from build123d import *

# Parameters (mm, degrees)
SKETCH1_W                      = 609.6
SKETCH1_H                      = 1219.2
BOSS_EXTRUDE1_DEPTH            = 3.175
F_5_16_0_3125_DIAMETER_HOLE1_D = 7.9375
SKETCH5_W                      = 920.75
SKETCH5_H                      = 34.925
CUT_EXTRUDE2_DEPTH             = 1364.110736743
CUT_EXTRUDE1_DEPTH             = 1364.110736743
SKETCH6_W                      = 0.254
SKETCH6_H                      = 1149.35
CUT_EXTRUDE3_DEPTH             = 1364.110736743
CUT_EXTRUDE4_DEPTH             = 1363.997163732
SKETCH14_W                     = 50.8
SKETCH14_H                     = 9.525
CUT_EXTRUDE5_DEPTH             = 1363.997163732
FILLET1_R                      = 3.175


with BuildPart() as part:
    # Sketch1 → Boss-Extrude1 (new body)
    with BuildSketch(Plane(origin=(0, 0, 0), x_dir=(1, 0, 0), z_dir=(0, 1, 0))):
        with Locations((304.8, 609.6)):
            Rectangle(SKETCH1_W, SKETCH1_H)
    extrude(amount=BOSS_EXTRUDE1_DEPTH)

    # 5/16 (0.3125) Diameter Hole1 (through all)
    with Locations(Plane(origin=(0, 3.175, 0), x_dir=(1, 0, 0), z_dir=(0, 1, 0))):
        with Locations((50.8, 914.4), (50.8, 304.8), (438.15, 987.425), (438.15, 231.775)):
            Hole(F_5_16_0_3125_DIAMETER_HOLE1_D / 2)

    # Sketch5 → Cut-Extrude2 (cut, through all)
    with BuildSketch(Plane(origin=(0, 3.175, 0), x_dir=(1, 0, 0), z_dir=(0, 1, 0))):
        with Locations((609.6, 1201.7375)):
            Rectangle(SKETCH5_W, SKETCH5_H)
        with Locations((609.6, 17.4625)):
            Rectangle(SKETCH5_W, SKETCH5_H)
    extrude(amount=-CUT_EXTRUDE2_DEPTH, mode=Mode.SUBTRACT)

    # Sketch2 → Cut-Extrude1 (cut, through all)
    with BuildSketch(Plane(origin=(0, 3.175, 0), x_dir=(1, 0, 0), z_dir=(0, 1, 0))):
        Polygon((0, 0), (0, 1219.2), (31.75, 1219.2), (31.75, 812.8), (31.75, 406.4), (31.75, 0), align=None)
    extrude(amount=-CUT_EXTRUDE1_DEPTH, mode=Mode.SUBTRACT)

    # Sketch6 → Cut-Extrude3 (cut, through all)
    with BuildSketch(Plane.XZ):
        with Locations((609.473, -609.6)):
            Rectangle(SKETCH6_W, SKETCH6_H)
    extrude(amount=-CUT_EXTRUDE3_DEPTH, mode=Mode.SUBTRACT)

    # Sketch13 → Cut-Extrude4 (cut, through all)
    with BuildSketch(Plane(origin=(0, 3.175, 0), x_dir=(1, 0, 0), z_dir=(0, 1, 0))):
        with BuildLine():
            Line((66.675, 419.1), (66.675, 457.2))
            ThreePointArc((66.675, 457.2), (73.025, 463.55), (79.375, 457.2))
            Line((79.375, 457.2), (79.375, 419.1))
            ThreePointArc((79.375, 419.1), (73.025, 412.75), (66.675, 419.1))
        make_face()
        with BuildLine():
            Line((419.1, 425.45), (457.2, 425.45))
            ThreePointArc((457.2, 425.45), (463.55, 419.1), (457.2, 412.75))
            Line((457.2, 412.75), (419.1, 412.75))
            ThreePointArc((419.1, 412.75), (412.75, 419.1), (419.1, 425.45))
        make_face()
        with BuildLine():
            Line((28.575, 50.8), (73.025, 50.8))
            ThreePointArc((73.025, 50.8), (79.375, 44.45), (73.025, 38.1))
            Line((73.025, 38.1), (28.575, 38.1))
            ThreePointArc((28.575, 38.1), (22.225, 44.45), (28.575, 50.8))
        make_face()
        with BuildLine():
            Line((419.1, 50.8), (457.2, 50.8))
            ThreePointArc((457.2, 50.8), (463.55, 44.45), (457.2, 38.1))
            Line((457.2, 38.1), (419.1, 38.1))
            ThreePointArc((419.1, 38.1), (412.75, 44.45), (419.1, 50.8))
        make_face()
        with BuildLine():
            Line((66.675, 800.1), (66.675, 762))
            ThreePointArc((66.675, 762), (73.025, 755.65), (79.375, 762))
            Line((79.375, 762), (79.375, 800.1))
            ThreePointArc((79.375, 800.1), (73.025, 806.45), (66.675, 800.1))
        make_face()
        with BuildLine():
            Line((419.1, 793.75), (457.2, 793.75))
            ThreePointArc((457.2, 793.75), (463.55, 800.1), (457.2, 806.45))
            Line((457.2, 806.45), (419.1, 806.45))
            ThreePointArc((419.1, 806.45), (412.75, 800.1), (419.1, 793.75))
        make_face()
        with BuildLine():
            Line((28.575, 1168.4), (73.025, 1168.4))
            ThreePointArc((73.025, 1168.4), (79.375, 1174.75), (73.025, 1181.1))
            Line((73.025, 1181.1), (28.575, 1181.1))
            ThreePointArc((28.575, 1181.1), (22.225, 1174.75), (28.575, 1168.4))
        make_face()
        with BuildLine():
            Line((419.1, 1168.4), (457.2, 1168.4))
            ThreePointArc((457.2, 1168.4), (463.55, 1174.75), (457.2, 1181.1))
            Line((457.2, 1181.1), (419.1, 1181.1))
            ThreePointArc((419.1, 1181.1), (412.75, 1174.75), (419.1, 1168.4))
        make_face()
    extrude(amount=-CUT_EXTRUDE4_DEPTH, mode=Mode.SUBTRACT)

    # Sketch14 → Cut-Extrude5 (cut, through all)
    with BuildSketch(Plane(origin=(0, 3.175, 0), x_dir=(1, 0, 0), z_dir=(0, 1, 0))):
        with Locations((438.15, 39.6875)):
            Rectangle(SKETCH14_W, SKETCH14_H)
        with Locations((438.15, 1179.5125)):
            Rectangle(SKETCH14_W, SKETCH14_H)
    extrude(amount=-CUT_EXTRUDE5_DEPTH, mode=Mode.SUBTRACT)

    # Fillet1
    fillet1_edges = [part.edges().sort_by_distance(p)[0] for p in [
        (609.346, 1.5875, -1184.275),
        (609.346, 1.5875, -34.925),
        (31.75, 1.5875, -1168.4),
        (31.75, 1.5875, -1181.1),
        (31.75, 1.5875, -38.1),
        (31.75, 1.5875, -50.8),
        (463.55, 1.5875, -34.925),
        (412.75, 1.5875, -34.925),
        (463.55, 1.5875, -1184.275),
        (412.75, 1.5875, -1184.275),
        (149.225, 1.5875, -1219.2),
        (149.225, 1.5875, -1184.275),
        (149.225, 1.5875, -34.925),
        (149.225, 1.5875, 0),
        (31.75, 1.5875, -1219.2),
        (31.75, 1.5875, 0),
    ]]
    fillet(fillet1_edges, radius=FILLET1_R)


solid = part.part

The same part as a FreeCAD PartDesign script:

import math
import FreeCAD as App
import Part
import Sketcher
from FreeCAD import Vector
Q = App.Units.Quantity


def edges_at(feature, points):
    """Names of the edges that pass closest to the given points."""
    edges = feature.Shape.Edges
    near = lambda p: min(range(len(edges)), key=lambda i: edges[i].distToShape(Part.Vertex(*p))[0])
    return sorted({f"Edge{near(p) + 1}" for p in points})


def add_polygon(sketch, points):
    """Adds a closed chain of lines whose ends are joined by coincident constraints."""
    first, n = sketch.GeometryCount, len(points)
    for a, b in zip(points, points[1:] + points[:1]):
        sketch.addGeometry(Part.LineSegment(App.Vector(*a, 0), App.Vector(*b, 0)), False)
    for i in range(n):
        sketch.addConstraint(Sketcher.Constraint("Coincident", first + i, 2, first + (i + 1) % n, 1))

doc = App.newDocument("Part")
body = doc.addObject("PartDesign::Body", "Body")

# Sketch on XZ plane
sketch1 = body.newObject("Sketcher::SketchObject", "Sketch")
sketch1.AttachmentSupport = (doc.getObject("XZ_Plane"), [""])
sketch1.MapMode = "FlatFace"
add_polygon(sketch1, [(0, -1219.2), (0, 0), (609.6, 0), (609.6, -1219.2)])  # lines 0-3
sketch1.addConstraint(Sketcher.Constraint("Vertical", 0))
sketch1.addConstraint(Sketcher.Constraint("Horizontal", 1))
sketch1.addConstraint(Sketcher.Constraint("Vertical", 2))
sketch1.addConstraint(Sketcher.Constraint("Horizontal", 3))
sketch1.addConstraint(Sketcher.Constraint("Coincident", 0, 2, -1, 1))
sketch1.addConstraint(Sketcher.Constraint("DistanceX", 1, 1, 1, 2, Q("24 in")))
sketch1.addConstraint(Sketcher.Constraint("DistanceY", 0, 1, 0, 2, Q("48 in")))
pad1 = body.newObject("PartDesign::Pad", "Pad")
pad1.Profile = sketch1
pad1.Length = Q("0.125 in")
pad1.Reversed = True

# Sketch on XZ plane
sketch2 = body.newObject("Sketcher::SketchObject", "Sketch001")
sketch2.AttachmentSupport = (doc.getObject("XZ_Plane"), [""])
sketch2.MapMode = "FlatFace"
sketch2.AttachmentOffset = App.Placement(Vector(0, 0, -0.125 * 25.4), App.Rotation())
sketch2.addGeometry(Part.Circle(Vector(50.8, -914.4, 0), Vector(0, 0, 1), 3.96875), False)
sketch2.addGeometry(Part.Circle(Vector(50.8, -304.8, 0), Vector(0, 0, 1), 3.96875), False)
sketch2.addGeometry(Part.Circle(Vector(438.15, -987.425, 0), Vector(0, 0, 1), 3.96875), False)
sketch2.addGeometry(Part.Circle(Vector(438.15, -231.775, 0), Vector(0, 0, 1), 3.96875), False)
sketch2.addConstraint(Sketcher.Constraint("Equal", 0, 1))
sketch2.addConstraint(Sketcher.Constraint("Equal", 1, 2))
sketch2.addConstraint(Sketcher.Constraint("Equal", 2, 3))
sketch2.addConstraint(Sketcher.Constraint("Vertical", 0, 3, 1, 3))
sketch2.addConstraint(Sketcher.Constraint("Vertical", 2, 3, 3, 3))
sketch2.addConstraint(Sketcher.Constraint("Diameter", 0, Q("0.3125 in")))
sketch2.addConstraint(Sketcher.Constraint("DistanceX", -1, 1, 0, 3, Q("2 in")))
sketch2.addConstraint(Sketcher.Constraint("DistanceY", 0, 3, -1, 1, Q("36 in")))
sketch2.addConstraint(Sketcher.Constraint("DistanceY", 1, 3, -1, 1, Q("12 in")))
sketch2.addConstraint(Sketcher.Constraint("DistanceX", -1, 1, 2, 3, Q("17.25 in")))
sketch2.addConstraint(Sketcher.Constraint("DistanceY", 2, 3, 3, 3, Q("29.75 in")))
sketch2.addConstraint(Sketcher.Constraint("DistanceY", 2, 3, -1, 1, Q("38.875 in")))
doc.recompute()
hole = body.newObject("PartDesign::Hole", "Hole")
hole.Profile = sketch2
hole.ThreadType = "None"
hole.Diameter = Q("0.3125 in")
hole.DepthType = "ThroughAll"
hole.Reversed = True

# Sketch on XZ plane
sketch3 = body.newObject("Sketcher::SketchObject", "Sketch002")
sketch3.AttachmentSupport = (doc.getObject("XZ_Plane"), [""])
sketch3.MapMode = "FlatFace"
sketch3.AttachmentOffset = App.Placement(Vector(0, 0, -0.125 * 25.4), App.Rotation())
add_polygon(sketch3, [(149.225, -1219.2), (149.225, -1184.275), (1069.975, -1184.275), (1069.975, -1219.2)])  # lines 0-3
add_polygon(sketch3, [(149.225, -34.925), (149.225, 0), (1069.975, 0), (1069.975, -34.925)])  # lines 4-7
sketch3.addConstraint(Sketcher.Constraint("Vertical", 0))
sketch3.addConstraint(Sketcher.Constraint("Horizontal", 1))
sketch3.addConstraint(Sketcher.Constraint("Vertical", 2))
sketch3.addConstraint(Sketcher.Constraint("Horizontal", 3))
sketch3.addConstraint(Sketcher.Constraint("Vertical", 4))
sketch3.addConstraint(Sketcher.Constraint("Horizontal", 5))
sketch3.addConstraint(Sketcher.Constraint("Vertical", 6))
sketch3.addConstraint(Sketcher.Constraint("Horizontal", 7))
sketch3.addConstraint(Sketcher.Constraint("PointOnObject", 4, 2, -1))
sketch3.addConstraint(Sketcher.Constraint("Vertical", 3, 2, 4, 2))
sketch3.addConstraint(Sketcher.Constraint("Vertical", 2, 2, 5, 2))
sketch3.addConstraint(Sketcher.Constraint("Equal", 2, 4))
sketch3.addConstraint(Sketcher.Constraint("DistanceY", 2, 2, -1, 1, Q("48 in")))
sketch3.addConstraint(Sketcher.Constraint("DistanceX", 1, 1, 1, 2, Q("36.25 in")))
sketch3.addConstraint(Sketcher.Constraint("DistanceY", 0, 1, 0, 2, Q("1.375 in")))
sketch3.addConstraint(Sketcher.Constraint("DistanceX", -1, 1, 0, 2, Q("5.875 in")))
pocket1 = body.newObject("PartDesign::Pocket", "Pocket")
pocket1.Profile = sketch3
pocket1.Type = "ThroughAll"
pocket1.Reversed = True

# Sketch on XZ plane
sketch4 = body.newObject("Sketcher::SketchObject", "Sketch003")
sketch4.AttachmentSupport = (doc.getObject("XZ_Plane"), [""])
sketch4.MapMode = "FlatFace"
sketch4.AttachmentOffset = App.Placement(Vector(0, 0, -0.125 * 25.4), App.Rotation())
add_polygon(sketch4, [(0, -1219.2), (0, 0), (31.75, 0), (31.75, -1219.2)])  # lines 0-3
sketch4.addConstraint(Sketcher.Constraint("Vertical", 0))
sketch4.addConstraint(Sketcher.Constraint("Horizontal", 1))
sketch4.addConstraint(Sketcher.Constraint("Vertical", 2))
sketch4.addConstraint(Sketcher.Constraint("Horizontal", 3))
sketch4.addConstraint(Sketcher.Constraint("Coincident", 0, 2, -1, 1))
sketch4.addConstraint(Sketcher.Constraint("DistanceY", 0, 1, 0, 2, Q("48 in")))
sketch4.addConstraint(Sketcher.Constraint("DistanceX", 1, 1, 1, 2, Q("1.25 in")))
pocket2 = body.newObject("PartDesign::Pocket", "Pocket001")
pocket2.Profile = sketch4
pocket2.Type = "ThroughAll"
pocket2.Reversed = True

# Sketch on XZ plane
sketch5 = body.newObject("Sketcher::SketchObject", "Sketch004")
sketch5.AttachmentSupport = (doc.getObject("XZ_Plane"), [""])
sketch5.MapMode = "FlatFace"
add_polygon(sketch5, [(609.346, -34.925), (609.346, -1184.275), (609.6, -1184.275), (609.6, -34.925)])  # lines 0-3
sketch5.addConstraint(Sketcher.Constraint("Vertical", 0))
sketch5.addConstraint(Sketcher.Constraint("Horizontal", 1))
sketch5.addConstraint(Sketcher.Constraint("Vertical", 2))
sketch5.addConstraint(Sketcher.Constraint("Horizontal", 3))
sketch5.addConstraint(Sketcher.Constraint("DistanceX", -1, 1, 1, 2, Q("24 in")))
sketch5.addConstraint(Sketcher.Constraint("DistanceX", 1, 1, 1, 2, Q("0.01 in")))
sketch5.addConstraint(Sketcher.Constraint("DistanceY", 0, 2, 0, 1, Q("45.25 in")))
sketch5.addConstraint(Sketcher.Constraint("DistanceY", 0, 2, -1, 1, Q("46.625 in")))
pocket3 = body.newObject("PartDesign::Pocket", "Pocket002")
pocket3.Profile = sketch5
pocket3.Type = "ThroughAll"

# Sketch on XZ plane
sketch6 = body.newObject("Sketcher::SketchObject", "Sketch005")
sketch6.AttachmentSupport = (doc.getObject("XZ_Plane"), [""])
sketch6.MapMode = "FlatFace"
sketch6.AttachmentOffset = App.Placement(Vector(0, 0, -0.125 * 25.4), App.Rotation())
sketch6.addGeometry(Part.LineSegment(Vector(66.675, -457.2, 0), Vector(66.675, -419.1, 0)), False)
sketch6.addGeometry(Part.ArcOfCircle(Part.Circle(Vector(73.025, -419.1, 0), Vector(0, 0, 1), 6.35), math.radians(0), math.radians(180)), False)
sketch6.addGeometry(Part.LineSegment(Vector(79.375, -419.1, 0), Vector(79.375, -457.2, 0)), False)
sketch6.addGeometry(Part.ArcOfCircle(Part.Circle(Vector(73.025, -457.2, 0), Vector(0, 0, 1), 6.35), math.radians(180), math.radians(360)), False)
sketch6.addGeometry(Part.LineSegment(Vector(457.2, -425.45, 0), Vector(419.1, -425.45, 0)), False)
sketch6.addGeometry(Part.ArcOfCircle(Part.Circle(Vector(419.1, -419.1, 0), Vector(0, 0, 1), 6.35), math.radians(90), math.radians(270)), False)
sketch6.addGeometry(Part.LineSegment(Vector(419.1, -412.75, 0), Vector(457.2, -412.75, 0)), False)
sketch6.addGeometry(Part.ArcOfCircle(Part.Circle(Vector(457.2, -419.1, 0), Vector(0, 0, 1), 6.35), math.radians(-90), math.radians(90)), False)
sketch6.addGeometry(Part.LineSegment(Vector(73.025, -50.8, 0), Vector(28.575, -50.8, 0)), False)
sketch6.addGeometry(Part.ArcOfCircle(Part.Circle(Vector(28.575, -44.45, 0), Vector(0, 0, 1), 6.35), math.radians(90), math.radians(270)), False)
sketch6.addGeometry(Part.LineSegment(Vector(28.575, -38.1, 0), Vector(73.025, -38.1, 0)), False)
sketch6.addGeometry(Part.ArcOfCircle(Part.Circle(Vector(73.025, -44.45, 0), Vector(0, 0, 1), 6.35), math.radians(-90), math.radians(90)), False)
sketch6.addGeometry(Part.LineSegment(Vector(457.2, -50.8, 0), Vector(419.1, -50.8, 0)), False)
sketch6.addGeometry(Part.ArcOfCircle(Part.Circle(Vector(419.1, -44.45, 0), Vector(0, 0, 1), 6.35), math.radians(90), math.radians(270)), False)
sketch6.addGeometry(Part.LineSegment(Vector(419.1, -38.1, 0), Vector(457.2, -38.1, 0)), False)
sketch6.addGeometry(Part.ArcOfCircle(Part.Circle(Vector(457.2, -44.45, 0), Vector(0, 0, 1), 6.35), math.radians(-90), math.radians(90)), False)
sketch6.addGeometry(Part.LineSegment(Vector(66.675, -800.1, 0), Vector(66.675, -762, 0)), False)
sketch6.addGeometry(Part.ArcOfCircle(Part.Circle(Vector(73.025, -762, 0), Vector(0, 0, 1), 6.35), math.radians(0), math.radians(180)), False)
sketch6.addGeometry(Part.LineSegment(Vector(79.375, -762, 0), Vector(79.375, -800.1, 0)), False)
sketch6.addGeometry(Part.ArcOfCircle(Part.Circle(Vector(73.025, -800.1, 0), Vector(0, 0, 1), 6.35), math.radians(180), math.radians(360)), False)
sketch6.addGeometry(Part.LineSegment(Vector(419.1, -793.75, 0), Vector(457.2, -793.75, 0)), False)
sketch6.addGeometry(Part.ArcOfCircle(Part.Circle(Vector(457.2, -800.1, 0), Vector(0, 0, 1), 6.35), math.radians(-90), math.radians(90)), False)
sketch6.addGeometry(Part.LineSegment(Vector(457.2, -806.45, 0), Vector(419.1, -806.45, 0)), False)
sketch6.addGeometry(Part.ArcOfCircle(Part.Circle(Vector(419.1, -800.1, 0), Vector(0, 0, 1), 6.35), math.radians(90), math.radians(270)), False)
sketch6.addGeometry(Part.LineSegment(Vector(28.575, -1168.4, 0), Vector(73.025, -1168.4, 0)), False)
sketch6.addGeometry(Part.ArcOfCircle(Part.Circle(Vector(73.025, -1174.75, 0), Vector(0, 0, 1), 6.35), math.radians(-90), math.radians(90)), False)
sketch6.addGeometry(Part.LineSegment(Vector(73.025, -1181.1, 0), Vector(28.575, -1181.1, 0)), False)
sketch6.addGeometry(Part.ArcOfCircle(Part.Circle(Vector(28.575, -1174.75, 0), Vector(0, 0, 1), 6.35), math.radians(90), math.radians(270)), False)
sketch6.addGeometry(Part.LineSegment(Vector(419.1, -1168.4, 0), Vector(457.2, -1168.4, 0)), False)
sketch6.addGeometry(Part.ArcOfCircle(Part.Circle(Vector(457.2, -1174.75, 0), Vector(0, 0, 1), 6.35), math.radians(-90), math.radians(90)), False)
sketch6.addGeometry(Part.LineSegment(Vector(457.2, -1181.1, 0), Vector(419.1, -1181.1, 0)), False)
sketch6.addGeometry(Part.ArcOfCircle(Part.Circle(Vector(419.1, -1174.75, 0), Vector(0, 0, 1), 6.35), math.radians(90), math.radians(270)), False)
sketch6.addConstraint(Sketcher.Constraint("Tangent", 0, 2, 1, 2))
sketch6.addConstraint(Sketcher.Constraint("Tangent", 1, 1, 2, 1))
sketch6.addConstraint(Sketcher.Constraint("Tangent", 2, 2, 3, 2))
sketch6.addConstraint(Sketcher.Constraint("Tangent", 3, 1, 0, 1))
sketch6.addConstraint(Sketcher.Constraint("Tangent", 4, 2, 5, 2))
sketch6.addConstraint(Sketcher.Constraint("Tangent", 5, 1, 6, 1))
sketch6.addConstraint(Sketcher.Constraint("Tangent", 6, 2, 7, 2))
sketch6.addConstraint(Sketcher.Constraint("Tangent", 7, 1, 4, 1))
sketch6.addConstraint(Sketcher.Constraint("Tangent", 8, 2, 9, 2))
sketch6.addConstraint(Sketcher.Constraint("Tangent", 9, 1, 10, 1))
sketch6.addConstraint(Sketcher.Constraint("Tangent", 10, 2, 11, 2))
sketch6.addConstraint(Sketcher.Constraint("Tangent", 11, 1, 8, 1))
sketch6.addConstraint(Sketcher.Constraint("Tangent", 12, 2, 13, 2))
sketch6.addConstraint(Sketcher.Constraint("Tangent", 13, 1, 14, 1))
sketch6.addConstraint(Sketcher.Constraint("Tangent", 14, 2, 15, 2))
sketch6.addConstraint(Sketcher.Constraint("Tangent", 15, 1, 12, 1))
sketch6.addConstraint(Sketcher.Constraint("Tangent", 16, 2, 17, 2))
sketch6.addConstraint(Sketcher.Constraint("Tangent", 17, 1, 18, 1))
sketch6.addConstraint(Sketcher.Constraint("Tangent", 18, 2, 19, 2))
sketch6.addConstraint(Sketcher.Constraint("Tangent", 19, 1, 16, 1))
sketch6.addConstraint(Sketcher.Constraint("Tangent", 20, 2, 21, 2))
sketch6.addConstraint(Sketcher.Constraint("Tangent", 21, 1, 22, 1))
sketch6.addConstraint(Sketcher.Constraint("Tangent", 22, 2, 23, 2))
sketch6.addConstraint(Sketcher.Constraint("Tangent", 23, 1, 20, 1))
sketch6.addConstraint(Sketcher.Constraint("Tangent", 24, 2, 25, 2))
sketch6.addConstraint(Sketcher.Constraint("Tangent", 25, 1, 26, 1))
sketch6.addConstraint(Sketcher.Constraint("Tangent", 26, 2, 27, 2))
sketch6.addConstraint(Sketcher.Constraint("Tangent", 27, 1, 24, 1))
sketch6.addConstraint(Sketcher.Constraint("Tangent", 28, 2, 29, 2))
sketch6.addConstraint(Sketcher.Constraint("Tangent", 29, 1, 30, 1))
sketch6.addConstraint(Sketcher.Constraint("Tangent", 30, 2, 31, 2))
sketch6.addConstraint(Sketcher.Constraint("Tangent", 31, 1, 28, 1))
sketch6.addConstraint(Sketcher.Constraint("Vertical", 0))
sketch6.addConstraint(Sketcher.Constraint("Vertical", 2))
sketch6.addConstraint(Sketcher.Constraint("Horizontal", 4))
sketch6.addConstraint(Sketcher.Constraint("Horizontal", 6))
sketch6.addConstraint(Sketcher.Constraint("Horizontal", 8))
sketch6.addConstraint(Sketcher.Constraint("Horizontal", 10))
sketch6.addConstraint(Sketcher.Constraint("Horizontal", 12))
sketch6.addConstraint(Sketcher.Constraint("Horizontal", 14))
sketch6.addConstraint(Sketcher.Constraint("Vertical", 16))
sketch6.addConstraint(Sketcher.Constraint("Vertical", 18))
sketch6.addConstraint(Sketcher.Constraint("Horizontal", 20))
sketch6.addConstraint(Sketcher.Constraint("Horizontal", 22))
sketch6.addConstraint(Sketcher.Constraint("Horizontal", 24))
sketch6.addConstraint(Sketcher.Constraint("Horizontal", 26))
sketch6.addConstraint(Sketcher.Constraint("Horizontal", 28))
sketch6.addConstraint(Sketcher.Constraint("Horizontal", 30))
sketch6.addConstraint(Sketcher.Constraint("Equal", 3, 5))
sketch6.addConstraint(Sketcher.Constraint("Equal", 7, 9))
sketch6.addConstraint(Sketcher.Constraint("Equal", 11, 13))
sketch6.addConstraint(Sketcher.Constraint("Equal", 15, 17))
sketch6.addConstraint(Sketcher.Constraint("Equal", 19, 21))
sketch6.addConstraint(Sketcher.Constraint("Equal", 23, 25))
sketch6.addConstraint(Sketcher.Constraint("Equal", 27, 29))
sketch6.addConstraint(Sketcher.Constraint("Horizontal", 1, 3, 5, 3))
sketch6.addConstraint(Sketcher.Constraint("Horizontal", 11, 3, 13, 3))
sketch6.addConstraint(Sketcher.Constraint("Horizontal", 19, 3, 21, 3))
sketch6.addConstraint(Sketcher.Constraint("Horizontal", 27, 3, 29, 3))
sketch6.addConstraint(Sketcher.Constraint("Vertical", 3, 3, 11, 3))
sketch6.addConstraint(Sketcher.Constraint("Vertical", 5, 3, 13, 3))
sketch6.addConstraint(Sketcher.Constraint("Vertical", 7, 3, 15, 3))
sketch6.addConstraint(Sketcher.Constraint("Vertical", 11, 3, 17, 3))
sketch6.addConstraint(Sketcher.Constraint("Vertical", 15, 3, 21, 3))
sketch6.addConstraint(Sketcher.Constraint("Vertical", 13, 3, 23, 3))
sketch6.addConstraint(Sketcher.Constraint("Vertical", 19, 3, 25, 3))
sketch6.addConstraint(Sketcher.Constraint("Vertical", 9, 3, 27, 3))
sketch6.addConstraint(Sketcher.Constraint("Vertical", 21, 3, 29, 3))
sketch6.addConstraint(Sketcher.Constraint("Vertical", 23, 3, 31, 3))
sketch6.addConstraint(Sketcher.Constraint("Equal", 30, 0))
sketch6.addConstraint(Sketcher.Constraint("Equal", 2, 16))
sketch6.addConstraint(Sketcher.Constraint("Radius", 1, Q("0.25 in")))
sketch6.addConstraint(Sketcher.Constraint("DistanceX", 4, 2, 4, 1, Q("1.5 in")))
sketch6.addConstraint(Sketcher.Constraint("DistanceY", 3, 3, -1, 1, Q("18 in")))
sketch6.addConstraint(Sketcher.Constraint("DistanceX", -1, 1, 7, 3, Q("18 in")))
sketch6.addConstraint(Sketcher.Constraint("DistanceY", 17, 3, -1, 1, Q("30 in")))
sketch6.addConstraint(Sketcher.Constraint("DistanceY", 8, 2, -1, 1, Q("2 in")))
sketch6.addConstraint(Sketcher.Constraint("DistanceY", 24, 2, -1, 1, Q("46 in")))
sketch6.addConstraint(Sketcher.Constraint("DistanceX", 8, 2, 1, 1, Q("2 in")))
sketch6.addConstraint(Sketcher.Constraint("DistanceX", -1, 1, 1, 3, Q("2.875 in")))
pocket4 = body.newObject("PartDesign::Pocket", "Pocket003")
pocket4.Profile = sketch6
pocket4.Type = "ThroughAll"
pocket4.Reversed = True

# Sketch on XZ plane
sketch7 = body.newObject("Sketcher::SketchObject", "Sketch006")
sketch7.AttachmentSupport = (doc.getObject("XZ_Plane"), [""])
sketch7.MapMode = "FlatFace"
sketch7.AttachmentOffset = App.Placement(Vector(0, 0, -0.125 * 25.4), App.Rotation())
add_polygon(sketch7, [(412.75, -44.45), (412.75, -34.925), (463.55, -34.925), (463.55, -44.45)])  # lines 0-3
add_polygon(sketch7, [(412.75, -1184.275), (412.75, -1174.75), (463.55, -1174.75), (463.55, -1184.275)])  # lines 4-7
sketch7.addConstraint(Sketcher.Constraint("Vertical", 0))
sketch7.addConstraint(Sketcher.Constraint("Horizontal", 1))
sketch7.addConstraint(Sketcher.Constraint("Vertical", 2))
sketch7.addConstraint(Sketcher.Constraint("Horizontal", 3))
sketch7.addConstraint(Sketcher.Constraint("Vertical", 4))
sketch7.addConstraint(Sketcher.Constraint("Horizontal", 5))
sketch7.addConstraint(Sketcher.Constraint("Vertical", 6))
sketch7.addConstraint(Sketcher.Constraint("Horizontal", 7))
sketch7.addConstraint(Sketcher.Constraint("Vertical", 3, 2, 4, 2))
sketch7.addConstraint(Sketcher.Constraint("Vertical", 2, 2, 5, 2))
sketch7.addConstraint(Sketcher.Constraint("Equal", 2, 4))
sketch7.addConstraint(Sketcher.Constraint("DistanceX", 1, 1, 1, 2, Q("2 in")))
sketch7.addConstraint(Sketcher.Constraint("DistanceY", 4, 2, 3, 2, Q("44.5 in")))
sketch7.addConstraint(Sketcher.Constraint("DistanceY", 0, 1, 0, 2, Q("0.375 in")))
sketch7.addConstraint(Sketcher.Constraint("DistanceX", -1, 1, 0, 2, Q("16.25 in")))
sketch7.addConstraint(Sketcher.Constraint("DistanceY", 2, 2, -1, 1, Q("1.75 in")))
pocket5 = body.newObject("PartDesign::Pocket", "Pocket004")
pocket5.Profile = sketch7
pocket5.Type = "ThroughAll"
pocket5.Reversed = True
doc.recompute()

fillet = body.newObject("PartDesign::Fillet", "Fillet")
fillet.Base = (pocket5, edges_at(pocket5, [
    (609.346, 1.587, -1184.275),
    (609.346, 1.587, -34.925),
    (31.75, 1.587, -1168.4),
    (31.75, 1.587, -1181.1),
    (31.75, 1.587, -38.1),
    (31.75, 1.587, -50.8),
    (463.55, 1.587, -34.925),
    (412.75, 1.587, -34.925),
    (463.55, 1.587, -1184.275),
    (412.75, 1.587, -1184.275),
    (149.225, 1.587, -1219.2),
    (149.225, 1.587, -1184.275),
    (149.225, 1.587, -34.925),
    (149.225, 1.587, 0),
    (31.75, 1.587, -1219.2),
    (31.75, 1.587, 0),
]))
fillet.Radius = Q("0.125 in")

doc.recompute()
